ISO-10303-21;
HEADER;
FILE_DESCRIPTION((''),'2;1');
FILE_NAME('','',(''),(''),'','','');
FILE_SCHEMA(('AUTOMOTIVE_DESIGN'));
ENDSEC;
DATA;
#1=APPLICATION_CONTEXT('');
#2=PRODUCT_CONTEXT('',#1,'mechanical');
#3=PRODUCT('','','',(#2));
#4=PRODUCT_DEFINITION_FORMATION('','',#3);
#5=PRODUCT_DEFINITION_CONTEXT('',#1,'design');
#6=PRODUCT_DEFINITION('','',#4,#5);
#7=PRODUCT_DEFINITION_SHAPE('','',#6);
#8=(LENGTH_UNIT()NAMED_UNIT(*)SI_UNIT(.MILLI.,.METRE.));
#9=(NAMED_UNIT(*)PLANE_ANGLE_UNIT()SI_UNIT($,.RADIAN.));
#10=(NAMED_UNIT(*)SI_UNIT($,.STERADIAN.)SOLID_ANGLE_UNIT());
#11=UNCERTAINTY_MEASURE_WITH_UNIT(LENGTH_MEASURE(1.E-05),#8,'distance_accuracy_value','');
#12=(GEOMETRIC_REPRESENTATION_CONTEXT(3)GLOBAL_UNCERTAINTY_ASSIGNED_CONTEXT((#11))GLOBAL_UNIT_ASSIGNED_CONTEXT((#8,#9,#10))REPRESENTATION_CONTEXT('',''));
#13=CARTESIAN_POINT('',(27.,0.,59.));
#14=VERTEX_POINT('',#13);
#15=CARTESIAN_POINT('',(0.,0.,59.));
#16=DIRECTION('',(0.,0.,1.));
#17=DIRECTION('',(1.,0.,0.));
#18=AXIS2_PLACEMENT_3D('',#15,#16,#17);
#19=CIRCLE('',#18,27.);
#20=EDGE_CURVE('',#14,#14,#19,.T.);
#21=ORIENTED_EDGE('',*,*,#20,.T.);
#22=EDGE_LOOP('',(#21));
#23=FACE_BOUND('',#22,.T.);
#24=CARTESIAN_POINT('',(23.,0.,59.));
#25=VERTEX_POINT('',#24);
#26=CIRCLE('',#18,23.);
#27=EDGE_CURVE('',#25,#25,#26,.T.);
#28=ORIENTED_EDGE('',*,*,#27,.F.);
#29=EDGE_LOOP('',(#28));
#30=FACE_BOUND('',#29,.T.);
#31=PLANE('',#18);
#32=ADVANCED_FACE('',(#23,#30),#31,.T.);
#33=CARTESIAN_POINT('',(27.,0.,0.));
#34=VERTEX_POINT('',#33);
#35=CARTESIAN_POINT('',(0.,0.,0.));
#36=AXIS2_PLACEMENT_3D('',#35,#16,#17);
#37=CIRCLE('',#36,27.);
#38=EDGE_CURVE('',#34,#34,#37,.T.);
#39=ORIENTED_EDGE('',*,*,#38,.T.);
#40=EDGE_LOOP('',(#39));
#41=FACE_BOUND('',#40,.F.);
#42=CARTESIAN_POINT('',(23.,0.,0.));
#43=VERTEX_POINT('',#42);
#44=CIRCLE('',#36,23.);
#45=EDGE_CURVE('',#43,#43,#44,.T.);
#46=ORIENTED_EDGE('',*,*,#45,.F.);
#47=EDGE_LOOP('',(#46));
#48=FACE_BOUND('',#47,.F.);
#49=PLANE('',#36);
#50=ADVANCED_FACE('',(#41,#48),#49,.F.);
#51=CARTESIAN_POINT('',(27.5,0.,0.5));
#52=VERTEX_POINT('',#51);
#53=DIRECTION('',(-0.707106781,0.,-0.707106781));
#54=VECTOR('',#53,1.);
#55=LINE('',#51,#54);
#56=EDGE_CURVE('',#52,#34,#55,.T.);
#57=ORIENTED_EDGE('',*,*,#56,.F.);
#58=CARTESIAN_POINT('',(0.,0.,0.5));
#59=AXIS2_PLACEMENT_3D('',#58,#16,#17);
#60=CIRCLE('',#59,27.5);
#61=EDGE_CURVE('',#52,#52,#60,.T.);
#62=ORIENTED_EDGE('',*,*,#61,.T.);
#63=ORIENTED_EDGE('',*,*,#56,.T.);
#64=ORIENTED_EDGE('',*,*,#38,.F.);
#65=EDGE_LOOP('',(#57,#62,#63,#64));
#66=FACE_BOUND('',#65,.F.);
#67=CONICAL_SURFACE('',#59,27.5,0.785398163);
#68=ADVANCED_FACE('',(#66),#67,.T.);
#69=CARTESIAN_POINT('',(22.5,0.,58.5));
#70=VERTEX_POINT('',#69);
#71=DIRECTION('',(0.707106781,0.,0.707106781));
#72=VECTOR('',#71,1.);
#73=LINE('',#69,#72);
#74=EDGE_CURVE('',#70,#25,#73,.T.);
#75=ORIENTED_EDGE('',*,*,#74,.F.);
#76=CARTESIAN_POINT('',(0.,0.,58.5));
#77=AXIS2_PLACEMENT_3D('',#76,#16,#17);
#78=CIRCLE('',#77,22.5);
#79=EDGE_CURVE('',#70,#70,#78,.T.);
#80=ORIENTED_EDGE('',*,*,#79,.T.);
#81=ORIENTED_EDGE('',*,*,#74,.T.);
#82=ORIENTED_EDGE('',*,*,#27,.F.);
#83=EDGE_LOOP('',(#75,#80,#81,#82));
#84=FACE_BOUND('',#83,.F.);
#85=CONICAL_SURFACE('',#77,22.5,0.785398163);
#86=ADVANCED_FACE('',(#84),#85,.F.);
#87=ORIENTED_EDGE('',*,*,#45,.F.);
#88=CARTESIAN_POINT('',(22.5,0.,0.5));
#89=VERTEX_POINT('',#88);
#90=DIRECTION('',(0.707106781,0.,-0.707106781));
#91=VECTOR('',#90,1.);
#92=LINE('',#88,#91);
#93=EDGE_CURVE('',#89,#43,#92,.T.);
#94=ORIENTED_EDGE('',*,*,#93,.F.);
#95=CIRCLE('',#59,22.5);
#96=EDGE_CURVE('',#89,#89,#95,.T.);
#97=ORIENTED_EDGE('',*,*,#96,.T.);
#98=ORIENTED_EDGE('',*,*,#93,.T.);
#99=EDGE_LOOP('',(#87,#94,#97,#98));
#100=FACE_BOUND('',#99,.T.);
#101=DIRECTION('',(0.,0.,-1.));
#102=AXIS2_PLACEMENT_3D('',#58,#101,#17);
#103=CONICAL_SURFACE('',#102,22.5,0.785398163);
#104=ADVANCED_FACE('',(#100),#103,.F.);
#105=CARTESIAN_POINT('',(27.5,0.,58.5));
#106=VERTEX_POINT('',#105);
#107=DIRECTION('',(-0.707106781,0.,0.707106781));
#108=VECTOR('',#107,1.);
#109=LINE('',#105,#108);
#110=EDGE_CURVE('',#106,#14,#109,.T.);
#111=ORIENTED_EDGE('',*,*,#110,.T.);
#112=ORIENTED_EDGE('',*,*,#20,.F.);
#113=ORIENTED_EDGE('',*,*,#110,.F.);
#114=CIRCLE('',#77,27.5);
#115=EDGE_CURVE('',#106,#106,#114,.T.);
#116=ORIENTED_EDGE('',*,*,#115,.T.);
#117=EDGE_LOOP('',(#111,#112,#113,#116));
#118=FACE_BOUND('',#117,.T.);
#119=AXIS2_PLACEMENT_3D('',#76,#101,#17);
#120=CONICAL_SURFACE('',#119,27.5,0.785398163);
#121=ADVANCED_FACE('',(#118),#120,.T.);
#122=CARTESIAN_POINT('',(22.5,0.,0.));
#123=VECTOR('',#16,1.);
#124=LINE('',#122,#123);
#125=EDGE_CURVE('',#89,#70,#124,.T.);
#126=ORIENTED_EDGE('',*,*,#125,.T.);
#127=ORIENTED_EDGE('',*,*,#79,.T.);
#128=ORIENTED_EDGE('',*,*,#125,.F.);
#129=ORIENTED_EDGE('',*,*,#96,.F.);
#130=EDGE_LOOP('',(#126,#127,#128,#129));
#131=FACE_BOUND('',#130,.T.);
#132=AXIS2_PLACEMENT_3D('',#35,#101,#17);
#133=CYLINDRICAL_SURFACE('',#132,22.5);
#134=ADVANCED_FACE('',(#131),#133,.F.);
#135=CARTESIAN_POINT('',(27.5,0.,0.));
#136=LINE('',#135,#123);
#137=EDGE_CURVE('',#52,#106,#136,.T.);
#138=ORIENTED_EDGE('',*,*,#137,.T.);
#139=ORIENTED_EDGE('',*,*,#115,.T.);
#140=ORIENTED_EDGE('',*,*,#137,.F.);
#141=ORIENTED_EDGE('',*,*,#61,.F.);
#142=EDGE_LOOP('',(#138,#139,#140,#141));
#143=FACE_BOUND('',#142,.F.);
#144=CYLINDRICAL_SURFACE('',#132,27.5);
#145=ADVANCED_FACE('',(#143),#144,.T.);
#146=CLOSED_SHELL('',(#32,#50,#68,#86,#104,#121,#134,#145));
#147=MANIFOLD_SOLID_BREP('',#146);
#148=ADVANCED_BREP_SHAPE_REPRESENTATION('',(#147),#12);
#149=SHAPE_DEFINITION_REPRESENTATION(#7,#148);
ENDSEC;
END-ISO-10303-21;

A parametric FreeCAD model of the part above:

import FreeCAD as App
import Part
import Sketcher


def edges_at(feature, points):
    """Names of the edges that pass closest to the given points."""
    edges = feature.Shape.Edges
    near = lambda p: min(range(len(edges)), key=lambda i: edges[i].distToShape(Part.Vertex(*p))[0])
    return sorted({f"Edge{near(p) + 1}" for p in points})

doc = App.newDocument("Part")
body = doc.addObject("PartDesign::Body", "Body")

# Sketch on XY plane
sketch1 = body.newObject("Sketcher::SketchObject", "Sketch")
sketch1.AttachmentSupport = (doc.getObject("XY_Plane"), [""])
sketch1.MapMode = "FlatFace"
sketch1.addGeometry([
    Part.Circle(App.Vector(0, 0, 0), App.Vector(0, 0, 1), 28),
    Part.Circle(App.Vector(0, 0, 0), App.Vector(0, 0, 1), 22),
], False)
sketch1.addConstraint([
    Sketcher.Constraint("Coincident", 0, 3, -1, 1),
    Sketcher.Constraint("Coincident", 1, 3, -1, 1),
    Sketcher.Constraint("Diameter", 0, 55.0),
    Sketcher.Constraint("Diameter", 1, 45.0),
])
pad1 = body.newObject("PartDesign::Pad", "Pad")
pad1.Profile = sketch1
pad1.Length = 59
doc.recompute()

chamfer = body.newObject("PartDesign::Chamfer", "Chamfer")
chamfer.Base = (pad1, edges_at(pad1, [
    (-27.5, 0, 59),
    (-22.5, 0, 59),
    (-27.5, 0, 0),
    (-22.5, 0, 0),
]))
chamfer.Size = 0.5

doc.recompute()
